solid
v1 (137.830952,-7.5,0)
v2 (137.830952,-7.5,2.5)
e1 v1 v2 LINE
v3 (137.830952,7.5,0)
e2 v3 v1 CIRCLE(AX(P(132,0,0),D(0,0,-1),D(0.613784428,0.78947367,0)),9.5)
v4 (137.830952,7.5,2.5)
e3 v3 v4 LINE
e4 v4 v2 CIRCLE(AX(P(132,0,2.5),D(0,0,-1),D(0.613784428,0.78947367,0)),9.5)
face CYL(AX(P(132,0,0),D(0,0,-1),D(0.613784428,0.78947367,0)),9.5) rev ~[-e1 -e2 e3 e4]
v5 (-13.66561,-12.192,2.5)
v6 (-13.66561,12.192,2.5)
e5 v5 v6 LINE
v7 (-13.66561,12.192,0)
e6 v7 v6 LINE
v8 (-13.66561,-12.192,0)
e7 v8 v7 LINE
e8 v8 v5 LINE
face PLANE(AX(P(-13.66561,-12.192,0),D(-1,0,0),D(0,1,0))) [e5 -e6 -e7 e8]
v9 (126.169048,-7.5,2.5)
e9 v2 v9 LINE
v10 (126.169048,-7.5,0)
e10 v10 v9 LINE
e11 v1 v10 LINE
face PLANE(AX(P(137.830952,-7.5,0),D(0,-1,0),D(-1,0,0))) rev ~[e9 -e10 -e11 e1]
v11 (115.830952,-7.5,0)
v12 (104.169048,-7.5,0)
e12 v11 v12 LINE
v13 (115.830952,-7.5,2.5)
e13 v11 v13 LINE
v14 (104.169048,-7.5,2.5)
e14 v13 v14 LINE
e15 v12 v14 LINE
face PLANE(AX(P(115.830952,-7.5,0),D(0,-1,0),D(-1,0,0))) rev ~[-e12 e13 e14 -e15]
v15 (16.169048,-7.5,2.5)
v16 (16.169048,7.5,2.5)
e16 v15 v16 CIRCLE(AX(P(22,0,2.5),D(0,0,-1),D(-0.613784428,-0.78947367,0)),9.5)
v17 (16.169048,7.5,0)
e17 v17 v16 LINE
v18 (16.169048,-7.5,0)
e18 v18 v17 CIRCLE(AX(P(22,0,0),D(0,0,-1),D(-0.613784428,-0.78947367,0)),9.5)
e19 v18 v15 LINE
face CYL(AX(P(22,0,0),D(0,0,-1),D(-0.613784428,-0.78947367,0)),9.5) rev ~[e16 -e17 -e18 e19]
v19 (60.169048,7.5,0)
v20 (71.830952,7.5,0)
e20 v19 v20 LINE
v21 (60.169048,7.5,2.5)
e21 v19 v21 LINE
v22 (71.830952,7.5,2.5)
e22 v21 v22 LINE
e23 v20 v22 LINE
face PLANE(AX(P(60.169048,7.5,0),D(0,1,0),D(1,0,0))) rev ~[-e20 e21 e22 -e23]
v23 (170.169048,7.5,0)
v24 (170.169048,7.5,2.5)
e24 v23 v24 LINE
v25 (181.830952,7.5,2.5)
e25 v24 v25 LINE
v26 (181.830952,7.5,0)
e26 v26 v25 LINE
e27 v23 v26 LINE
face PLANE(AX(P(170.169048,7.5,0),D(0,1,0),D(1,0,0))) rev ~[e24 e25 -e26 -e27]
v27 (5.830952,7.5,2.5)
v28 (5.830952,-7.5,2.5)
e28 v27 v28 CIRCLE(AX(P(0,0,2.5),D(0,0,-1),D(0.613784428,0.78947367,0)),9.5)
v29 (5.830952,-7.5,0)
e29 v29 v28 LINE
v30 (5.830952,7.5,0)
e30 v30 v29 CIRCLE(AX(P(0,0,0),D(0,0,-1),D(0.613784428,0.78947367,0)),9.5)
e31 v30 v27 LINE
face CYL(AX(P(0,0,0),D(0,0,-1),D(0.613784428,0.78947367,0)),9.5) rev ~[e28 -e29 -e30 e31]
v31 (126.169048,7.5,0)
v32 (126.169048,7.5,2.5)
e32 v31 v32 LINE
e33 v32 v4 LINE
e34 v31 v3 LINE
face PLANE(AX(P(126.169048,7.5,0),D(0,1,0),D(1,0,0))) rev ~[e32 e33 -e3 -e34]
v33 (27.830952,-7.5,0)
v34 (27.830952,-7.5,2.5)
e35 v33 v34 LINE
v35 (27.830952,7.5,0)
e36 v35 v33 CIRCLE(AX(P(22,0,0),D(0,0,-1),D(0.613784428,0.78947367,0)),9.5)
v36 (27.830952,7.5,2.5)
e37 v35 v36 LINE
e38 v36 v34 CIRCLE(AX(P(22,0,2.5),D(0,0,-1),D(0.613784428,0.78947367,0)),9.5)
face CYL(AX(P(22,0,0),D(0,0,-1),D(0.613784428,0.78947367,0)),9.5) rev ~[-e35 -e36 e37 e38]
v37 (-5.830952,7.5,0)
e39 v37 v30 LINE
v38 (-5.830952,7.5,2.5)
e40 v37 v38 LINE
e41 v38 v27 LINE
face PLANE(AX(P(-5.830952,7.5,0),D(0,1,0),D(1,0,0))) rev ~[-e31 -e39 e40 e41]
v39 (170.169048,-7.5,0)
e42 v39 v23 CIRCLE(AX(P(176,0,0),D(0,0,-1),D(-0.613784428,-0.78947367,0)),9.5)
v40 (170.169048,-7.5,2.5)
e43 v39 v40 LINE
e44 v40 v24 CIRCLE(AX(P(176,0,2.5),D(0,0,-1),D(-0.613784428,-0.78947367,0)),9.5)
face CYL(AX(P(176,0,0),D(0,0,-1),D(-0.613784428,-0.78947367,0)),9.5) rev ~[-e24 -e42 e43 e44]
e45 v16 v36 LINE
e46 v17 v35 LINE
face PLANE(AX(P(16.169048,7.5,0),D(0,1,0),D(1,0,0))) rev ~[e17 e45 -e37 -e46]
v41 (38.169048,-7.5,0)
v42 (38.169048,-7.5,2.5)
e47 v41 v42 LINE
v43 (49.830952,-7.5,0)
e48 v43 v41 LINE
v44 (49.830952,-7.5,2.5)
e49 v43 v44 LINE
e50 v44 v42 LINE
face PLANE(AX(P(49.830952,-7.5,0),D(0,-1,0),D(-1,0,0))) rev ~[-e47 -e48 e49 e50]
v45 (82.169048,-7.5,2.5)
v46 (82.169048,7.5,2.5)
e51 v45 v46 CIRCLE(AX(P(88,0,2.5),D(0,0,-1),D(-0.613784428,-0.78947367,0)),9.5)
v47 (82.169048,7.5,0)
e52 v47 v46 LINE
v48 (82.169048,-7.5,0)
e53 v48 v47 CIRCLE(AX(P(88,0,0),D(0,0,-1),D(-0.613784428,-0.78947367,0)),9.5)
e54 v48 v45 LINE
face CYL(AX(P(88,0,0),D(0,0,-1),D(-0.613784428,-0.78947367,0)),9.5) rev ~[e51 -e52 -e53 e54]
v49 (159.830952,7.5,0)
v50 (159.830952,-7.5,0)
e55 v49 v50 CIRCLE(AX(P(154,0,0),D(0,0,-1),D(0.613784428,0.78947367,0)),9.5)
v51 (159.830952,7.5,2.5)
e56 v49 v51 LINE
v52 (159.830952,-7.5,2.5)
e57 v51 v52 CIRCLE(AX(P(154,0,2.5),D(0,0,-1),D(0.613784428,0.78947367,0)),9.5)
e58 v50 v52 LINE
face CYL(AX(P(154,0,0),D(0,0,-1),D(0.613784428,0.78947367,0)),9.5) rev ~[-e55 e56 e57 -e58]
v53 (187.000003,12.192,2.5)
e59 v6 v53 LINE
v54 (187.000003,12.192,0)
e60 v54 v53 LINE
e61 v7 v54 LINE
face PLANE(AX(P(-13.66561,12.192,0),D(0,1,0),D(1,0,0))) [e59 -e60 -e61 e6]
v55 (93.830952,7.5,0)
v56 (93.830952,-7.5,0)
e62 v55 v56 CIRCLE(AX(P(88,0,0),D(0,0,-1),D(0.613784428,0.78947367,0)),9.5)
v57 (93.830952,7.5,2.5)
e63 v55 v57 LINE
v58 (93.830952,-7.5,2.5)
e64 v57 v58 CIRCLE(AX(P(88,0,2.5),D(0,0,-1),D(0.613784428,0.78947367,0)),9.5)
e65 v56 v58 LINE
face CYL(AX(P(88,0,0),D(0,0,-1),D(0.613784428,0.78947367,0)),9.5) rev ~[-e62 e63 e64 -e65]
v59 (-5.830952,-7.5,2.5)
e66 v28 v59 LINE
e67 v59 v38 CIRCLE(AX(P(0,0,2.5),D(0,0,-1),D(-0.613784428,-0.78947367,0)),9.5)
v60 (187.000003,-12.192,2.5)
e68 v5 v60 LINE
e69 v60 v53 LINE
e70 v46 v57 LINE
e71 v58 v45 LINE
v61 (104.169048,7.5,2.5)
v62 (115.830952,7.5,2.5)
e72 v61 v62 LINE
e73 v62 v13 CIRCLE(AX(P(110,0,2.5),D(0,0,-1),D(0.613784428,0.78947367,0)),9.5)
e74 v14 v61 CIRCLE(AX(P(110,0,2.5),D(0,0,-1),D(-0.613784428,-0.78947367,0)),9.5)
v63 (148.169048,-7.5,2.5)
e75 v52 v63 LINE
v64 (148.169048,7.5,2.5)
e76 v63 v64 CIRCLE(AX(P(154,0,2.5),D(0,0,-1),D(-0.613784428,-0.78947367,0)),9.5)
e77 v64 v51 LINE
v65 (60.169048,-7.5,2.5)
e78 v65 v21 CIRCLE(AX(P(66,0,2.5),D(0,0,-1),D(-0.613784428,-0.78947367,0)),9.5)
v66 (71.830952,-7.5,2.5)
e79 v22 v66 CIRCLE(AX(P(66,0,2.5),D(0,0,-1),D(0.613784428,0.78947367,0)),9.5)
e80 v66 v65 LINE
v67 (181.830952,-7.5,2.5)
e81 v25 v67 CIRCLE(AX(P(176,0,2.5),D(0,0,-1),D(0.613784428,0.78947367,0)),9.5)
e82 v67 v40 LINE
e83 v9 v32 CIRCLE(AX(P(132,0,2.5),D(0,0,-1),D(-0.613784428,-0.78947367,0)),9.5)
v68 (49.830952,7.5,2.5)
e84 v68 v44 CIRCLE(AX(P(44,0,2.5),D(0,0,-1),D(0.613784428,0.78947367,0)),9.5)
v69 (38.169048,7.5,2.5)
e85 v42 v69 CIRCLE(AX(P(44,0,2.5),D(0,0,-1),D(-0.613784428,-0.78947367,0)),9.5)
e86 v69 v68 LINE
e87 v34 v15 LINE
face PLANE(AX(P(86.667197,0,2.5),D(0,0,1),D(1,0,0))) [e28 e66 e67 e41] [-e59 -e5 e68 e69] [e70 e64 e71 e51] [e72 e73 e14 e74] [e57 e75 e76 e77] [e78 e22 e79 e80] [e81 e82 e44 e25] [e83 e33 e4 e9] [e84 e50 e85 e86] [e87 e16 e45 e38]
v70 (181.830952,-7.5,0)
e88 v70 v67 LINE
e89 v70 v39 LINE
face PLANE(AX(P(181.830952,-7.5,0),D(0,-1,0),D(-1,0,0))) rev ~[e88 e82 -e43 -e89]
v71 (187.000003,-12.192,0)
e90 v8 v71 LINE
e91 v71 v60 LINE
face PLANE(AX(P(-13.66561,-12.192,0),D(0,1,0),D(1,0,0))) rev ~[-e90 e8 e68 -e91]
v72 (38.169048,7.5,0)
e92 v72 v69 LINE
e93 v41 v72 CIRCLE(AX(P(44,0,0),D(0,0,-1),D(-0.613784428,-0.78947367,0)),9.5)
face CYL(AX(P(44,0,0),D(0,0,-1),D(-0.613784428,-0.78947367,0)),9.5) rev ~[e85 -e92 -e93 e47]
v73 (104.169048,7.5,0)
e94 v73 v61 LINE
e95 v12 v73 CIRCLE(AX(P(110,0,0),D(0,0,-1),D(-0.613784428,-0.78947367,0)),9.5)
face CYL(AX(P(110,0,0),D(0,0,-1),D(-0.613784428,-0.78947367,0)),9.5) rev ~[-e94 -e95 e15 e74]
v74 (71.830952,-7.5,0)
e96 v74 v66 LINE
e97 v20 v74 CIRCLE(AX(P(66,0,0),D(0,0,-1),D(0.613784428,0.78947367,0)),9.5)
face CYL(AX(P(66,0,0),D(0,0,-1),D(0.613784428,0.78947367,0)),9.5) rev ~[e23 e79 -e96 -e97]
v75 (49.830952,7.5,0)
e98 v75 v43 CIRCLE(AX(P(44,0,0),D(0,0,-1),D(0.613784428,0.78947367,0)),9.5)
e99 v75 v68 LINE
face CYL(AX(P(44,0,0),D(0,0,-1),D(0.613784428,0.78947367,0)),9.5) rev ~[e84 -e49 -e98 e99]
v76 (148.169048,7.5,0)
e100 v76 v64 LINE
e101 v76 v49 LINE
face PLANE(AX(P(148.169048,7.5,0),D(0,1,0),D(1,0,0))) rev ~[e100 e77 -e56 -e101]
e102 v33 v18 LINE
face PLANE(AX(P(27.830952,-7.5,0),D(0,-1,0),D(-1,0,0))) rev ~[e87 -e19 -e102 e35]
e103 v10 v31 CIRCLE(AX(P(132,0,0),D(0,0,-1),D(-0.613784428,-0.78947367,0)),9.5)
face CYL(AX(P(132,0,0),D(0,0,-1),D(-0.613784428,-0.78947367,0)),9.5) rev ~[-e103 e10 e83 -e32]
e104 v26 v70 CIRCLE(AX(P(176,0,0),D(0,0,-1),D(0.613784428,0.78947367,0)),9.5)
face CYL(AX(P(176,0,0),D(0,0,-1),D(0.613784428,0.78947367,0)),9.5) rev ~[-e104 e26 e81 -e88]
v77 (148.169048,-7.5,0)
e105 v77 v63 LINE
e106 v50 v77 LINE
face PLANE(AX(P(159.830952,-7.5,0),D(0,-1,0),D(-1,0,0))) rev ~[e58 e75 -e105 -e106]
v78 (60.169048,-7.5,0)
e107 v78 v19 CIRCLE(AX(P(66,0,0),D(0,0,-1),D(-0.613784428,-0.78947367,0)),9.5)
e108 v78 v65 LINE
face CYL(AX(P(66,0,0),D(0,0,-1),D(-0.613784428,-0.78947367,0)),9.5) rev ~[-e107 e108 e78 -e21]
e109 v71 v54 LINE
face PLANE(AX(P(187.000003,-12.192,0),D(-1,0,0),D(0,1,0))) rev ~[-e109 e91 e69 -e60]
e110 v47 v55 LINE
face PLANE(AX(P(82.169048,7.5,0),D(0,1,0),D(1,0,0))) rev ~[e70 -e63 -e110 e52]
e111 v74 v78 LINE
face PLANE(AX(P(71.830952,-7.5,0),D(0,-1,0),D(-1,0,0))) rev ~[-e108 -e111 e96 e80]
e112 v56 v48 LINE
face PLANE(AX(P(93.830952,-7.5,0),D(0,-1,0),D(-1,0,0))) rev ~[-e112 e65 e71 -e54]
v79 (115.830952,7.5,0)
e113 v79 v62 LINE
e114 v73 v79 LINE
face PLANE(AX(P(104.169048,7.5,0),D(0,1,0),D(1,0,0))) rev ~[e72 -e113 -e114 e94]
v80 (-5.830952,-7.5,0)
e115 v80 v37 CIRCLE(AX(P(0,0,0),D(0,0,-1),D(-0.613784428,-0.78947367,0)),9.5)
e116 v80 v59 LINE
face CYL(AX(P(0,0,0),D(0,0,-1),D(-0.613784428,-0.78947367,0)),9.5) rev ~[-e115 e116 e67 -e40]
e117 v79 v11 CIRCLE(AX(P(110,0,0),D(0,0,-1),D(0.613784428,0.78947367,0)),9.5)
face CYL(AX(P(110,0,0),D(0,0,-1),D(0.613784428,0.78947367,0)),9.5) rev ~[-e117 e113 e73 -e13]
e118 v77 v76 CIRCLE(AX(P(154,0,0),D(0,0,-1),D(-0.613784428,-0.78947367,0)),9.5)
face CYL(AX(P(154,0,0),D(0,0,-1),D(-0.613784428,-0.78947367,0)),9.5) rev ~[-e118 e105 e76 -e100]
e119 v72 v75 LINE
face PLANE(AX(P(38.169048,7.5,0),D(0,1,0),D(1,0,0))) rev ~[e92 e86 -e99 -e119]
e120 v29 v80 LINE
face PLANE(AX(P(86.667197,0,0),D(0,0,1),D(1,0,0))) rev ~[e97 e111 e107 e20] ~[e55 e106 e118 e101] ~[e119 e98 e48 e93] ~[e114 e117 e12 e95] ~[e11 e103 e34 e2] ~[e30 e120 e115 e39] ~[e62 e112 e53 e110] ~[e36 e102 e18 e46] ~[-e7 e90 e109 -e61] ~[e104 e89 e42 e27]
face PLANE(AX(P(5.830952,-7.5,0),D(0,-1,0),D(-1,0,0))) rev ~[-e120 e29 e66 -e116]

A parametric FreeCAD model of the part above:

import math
import FreeCAD as App
import Part
import Sketcher
from FreeCAD import Vector
Q = App.Units.Quantity

doc = App.newDocument("Part")
body = doc.addObject("PartDesign::Body", "Body")

sketch1 = doc.addObject("Sketcher::SketchObject", "Sketch")
body.addObject(sketch1)
sketch1.AttachmentSupport = (doc.XY_Plane, [""])
sketch1.MapMode = "FlatFace"
sketch1.addGeometry([
    Part.LineSegment(Vector(-14, 12, 0), Vector(-14, -12, 0)),
    Part.LineSegment(Vector(-14, -12, 0), Vector(187, -12, 0)),
    Part.LineSegment(Vector(187, -12, 0), Vector(187, 12, 0)),
    Part.LineSegment(Vector(187, 12, 0), Vector(-14, 12, 0)),
    Part.LineSegment(Vector(6, -8, 0), Vector(-6, -8, 0)),
    Part.ArcOfCircle(Part.Circle(Vector(0, 0, 0), Vector(0, 0, 1), 10), math.radians(128), math.radians(232)),
    Part.LineSegment(Vector(-6, 8, 0), Vector(6, 8, 0)),
    Part.ArcOfCircle(Part.Circle(Vector(0, 0, 0), Vector(0, 0, 1), 10), math.radians(-52), math.radians(52)),
    Part.LineSegment(Vector(28, -8, 0), Vector(16, -8, 0)),
    Part.ArcOfCircle(Part.Circle(Vector(22, 0, 0), Vector(0, 0, 1), 10), math.radians(128), math.radians(232)),
    Part.LineSegment(Vector(16, 8, 0), Vector(28, 8, 0)),
    Part.ArcOfCircle(Part.Circle(Vector(22, 0, 0), Vector(0, 0, 1), 10), math.radians(-52), math.radians(52)),
    Part.LineSegment(Vector(50, -8, 0), Vector(38, -8, 0)),
    Part.ArcOfCircle(Part.Circle(Vector(44, 0, 0), Vector(0, 0, 1), 10), math.radians(128), math.radians(232)),
    Part.LineSegment(Vector(38, 8, 0), Vector(50, 8, 0)),
    Part.ArcOfCircle(Part.Circle(Vector(44, 0, 0), Vector(0, 0, 1), 10), math.radians(-52), math.radians(52)),
    Part.LineSegment(Vector(72, -8, 0), Vector(60, -8, 0)),
    Part.ArcOfCircle(Part.Circle(Vector(66, 0, 0), Vector(0, 0, 1), 10), math.radians(128), math.radians(232)),
    Part.LineSegment(Vector(60, 8, 0), Vector(72, 8, 0)),
    Part.ArcOfCircle(Part.Circle(Vector(66, 0, 0), Vector(0, 0, 1), 10), math.radians(-52), math.radians(52)),
    Part.LineSegment(Vector(94, -8, 0), Vector(82, -8, 0)),
    Part.ArcOfCircle(Part.Circle(Vector(88, 0, 0), Vector(0, 0, 1), 10), math.radians(128), math.radians(232)),
    Part.LineSegment(Vector(82, 8, 0), Vector(94, 8, 0)),
    Part.ArcOfCircle(Part.Circle(Vector(88, 0, 0), Vector(0, 0, 1), 10), math.radians(-52), math.radians(52)),
    Part.LineSegment(Vector(116, -8, 0), Vector(104, -8, 0)),
    Part.ArcOfCircle(Part.Circle(Vector(110, 0, 0), Vector(0, 0, 1), 10), math.radians(128), math.radians(232)),
    Part.LineSegment(Vector(104, 8, 0), Vector(116, 8, 0)),
    Part.ArcOfCircle(Part.Circle(Vector(110, 0, 0), Vector(0, 0, 1), 10), math.radians(-52), math.radians(52)),
    Part.LineSegment(Vector(138, -8, 0), Vector(126, -8, 0)),
    Part.ArcOfCircle(Part.Circle(Vector(132, 0, 0), Vector(0, 0, 1), 10), math.radians(128), math.radians(232)),
    Part.LineSegment(Vector(126, 8, 0), Vector(138, 8, 0)),
    Part.ArcOfCircle(Part.Circle(Vector(132, 0, 0), Vector(0, 0, 1), 10), math.radians(-52), math.radians(52)),
    Part.LineSegment(Vector(160, -8, 0), Vector(148, -8, 0)),
    Part.ArcOfCircle(Part.Circle(Vector(154, 0, 0), Vector(0, 0, 1), 10), math.radians(128), math.radians(232)),
    Part.LineSegment(Vector(148, 8, 0), Vector(160, 8, 0)),
    Part.ArcOfCircle(Part.Circle(Vector(154, 0, 0), Vector(0, 0, 1), 10), math.radians(-52), math.radians(52)),
    Part.LineSegment(Vector(182, -8, 0), Vector(170, -8, 0)),
    Part.ArcOfCircle(Part.Circle(Vector(176, 0, 0), Vector(0, 0, 1), 10), math.radians(128), math.radians(232)),
    Part.LineSegment(Vector(170, 8, 0), Vector(182, 8, 0)),
    Part.ArcOfCircle(Part.Circle(Vector(176, 0, 0), Vector(0, 0, 1), 10), math.radians(-52), math.radians(52)),
], False)
sketch1.addConstraint([
    Sketcher.Constraint("Coincident", 0, 2, 1, 1),
    Sketcher.Constraint("Coincident", 1, 2, 2, 1),
    Sketcher.Constraint("Coincident", 2, 2, 3, 1),
    Sketcher.Constraint("Coincident", 3, 2, 0, 1),
    Sketcher.Constraint("Coincident", 4, 2, 5, 2),
    Sketcher.Constraint("Coincident", 5, 1, 6, 1),
    Sketcher.Constraint("Coincident", 6, 2, 7, 2),
    Sketcher.Constraint("Coincident", 7, 1, 4, 1),
    Sketcher.Constraint("Coincident", 8, 2, 9, 2),
    Sketcher.Constraint("Coincident", 9, 1, 10, 1),
    Sketcher.Constraint("Coincident", 10, 2, 11, 2),
    Sketcher.Constraint("Coincident", 11, 1, 8, 1),
    Sketcher.Constraint("Coincident", 12, 2, 13, 2),
    Sketcher.Constraint("Coincident", 13, 1, 14, 1),
    Sketcher.Constraint("Coincident", 14, 2, 15, 2),
    Sketcher.Constraint("Coincident", 15, 1, 12, 1),
    Sketcher.Constraint("Coincident", 16, 2, 17, 2),
    Sketcher.Constraint("Coincident", 17, 1, 18, 1),
    Sketcher.Constraint("Coincident", 18, 2, 19, 2),
    Sketcher.Constraint("Coincident", 19, 1, 16, 1),
    Sketcher.Constraint("Coincident", 20, 2, 21, 2),
    Sketcher.Constraint("Coincident", 21, 1, 22, 1),
    Sketcher.Constraint("Coincident", 22, 2, 23, 2),
    Sketcher.Constraint("Coincident", 23, 1, 20, 1),
    Sketcher.Constraint("Coincident", 24, 2, 25, 2),
    Sketcher.Constraint("Coincident", 25, 1, 26, 1),
    Sketcher.Constraint("Coincident", 26, 2, 27, 2),
    Sketcher.Constraint("Coincident", 27, 1, 24, 1),
    Sketcher.Constraint("Coincident", 28, 2, 29, 2),
    Sketcher.Constraint("Coincident", 29, 1, 30, 1),
    Sketcher.Constraint("Coincident", 30, 2, 31, 2),
    Sketcher.Constraint("Coincident", 31, 1, 28, 1),
    Sketcher.Constraint("Coincident", 32, 2, 33, 2),
    Sketcher.Constraint("Coincident", 33, 1, 34, 1),
    Sketcher.Constraint("Coincident", 34, 2, 35, 2),
    Sketcher.Constraint("Coincident", 35, 1, 32, 1),
    Sketcher.Constraint("Coincident", 36, 2, 37, 2),
    Sketcher.Constraint("Coincident", 37, 1, 38, 1),
    Sketcher.Constraint("Coincident", 38, 2, 39, 2),
    Sketcher.Constraint("Coincident", 39, 1, 36, 1),
    Sketcher.Constraint("Vertical", 0),
    Sketcher.Constraint("Horizontal", 1),
    Sketcher.Constraint("Vertical", 2),
    Sketcher.Constraint("Horizontal", 3),
    Sketcher.Constraint("Horizontal", 4),
    Sketcher.Constraint("Horizontal", 6),
    Sketcher.Constraint("Horizontal", 8),
    Sketcher.Constraint("Horizontal", 10),
    Sketcher.Constraint("Horizontal", 12),
    Sketcher.Constraint("Horizontal", 14),
    Sketcher.Constraint("Horizontal", 16),
    Sketcher.Constraint("Horizontal", 18),
    Sketcher.Constraint("Horizontal", 20),
    Sketcher.Constraint("Horizontal", 22),
    Sketcher.Constraint("Horizontal", 24),
    Sketcher.Constraint("Horizontal", 26),
    Sketcher.Constraint("Horizontal", 28),
    Sketcher.Constraint("Horizontal", 30),
    Sketcher.Constraint("Horizontal", 32),
    Sketcher.Constraint("Horizontal", 34),
    Sketcher.Constraint("Horizontal", 36),
    Sketcher.Constraint("Horizontal", 38),
    Sketcher.Constraint("Coincident", 5, 3, -1, 1),
    Sketcher.Constraint("Coincident", 7, 3, -1, 1),
    Sketcher.Constraint("Coincident", 11, 3, 9, 3),
    Sketcher.Constraint("Coincident", 15, 3, 13, 3),
    Sketcher.Constraint("Coincident", 19, 3, 17, 3),
    Sketcher.Constraint("Coincident", 23, 3, 21, 3),
    Sketcher.Constraint("Coincident", 27, 3, 25, 3),
    Sketcher.Constraint("Coincident", 31, 3, 29, 3),
    Sketcher.Constraint("Coincident", 35, 3, 33, 3),
    Sketcher.Constraint("Coincident", 39, 3, 37, 3),
    Sketcher.Constraint("Equal", 5, 7),
    Sketcher.Constraint("Equal", 7, 9),
    Sketcher.Constraint("Equal", 9, 11),
    Sketcher.Constraint("Equal", 11, 13),
    Sketcher.Constraint("Equal", 13, 15),
    Sketcher.Constraint("Equal", 15, 17),
    Sketcher.Constraint("Equal", 17, 19),
    Sketcher.Constraint("Equal", 19, 21),
    Sketcher.Constraint("Equal", 21, 23),
    Sketcher.Constraint("Equal", 23, 25),
    Sketcher.Constraint("Equal", 25, 27),
    Sketcher.Constraint("Equal", 27, 29),
    Sketcher.Constraint("Equal", 29, 31),
    Sketcher.Constraint("Equal", 31, 33),
    Sketcher.Constraint("Equal", 33, 35),
    Sketcher.Constraint("Equal", 35, 37),
    Sketcher.Constraint("Equal", 37, 39),
    Sketcher.Constraint("Symmetric", 8, 2, 9, 1, -1),
    Sketcher.Constraint("Symmetric", 12, 2, 13, 1, -1),
    Sketcher.Constraint("Symmetric", 16, 2, 17, 1, -1),
    Sketcher.Constraint("Symmetric", 20, 2, 21, 1, -1),
    Sketcher.Constraint("Symmetric", 24, 2, 25, 1, -1),
    Sketcher.Constraint("Symmetric", 28, 2, 29, 1, -1),
    Sketcher.Constraint("Symmetric", 32, 2, 33, 1, -1),
    Sketcher.Constraint("Symmetric", 36, 2, 37, 1, -1),
    Sketcher.Constraint("Horizontal", 7, 1, 8, 2),
    Sketcher.Constraint("Horizontal", 6, 2, 9, 1),
    Sketcher.Constraint("Horizontal", 11, 1, 12, 2),
    Sketcher.Constraint("Horizontal", 15, 1, 16, 2),
    Sketcher.Constraint("Horizontal", 19, 1, 20, 2),
    Sketcher.Constraint("Horizontal", 23, 1, 24, 2),
    Sketcher.Constraint("Horizontal", 27, 1, 28, 2),
    Sketcher.Constraint("Horizontal", 31, 1, 32, 2),
    Sketcher.Constraint("Horizontal", 35, 1, 36, 2),
    Sketcher.Constraint("Radius", 5, Q("9.5 mm")),
    Sketcher.Constraint("DistanceX", -1, 1, 9, 3, Q("22 mm")),
    Sketcher.Constraint("DistanceX", -1, 1, 13, 3, Q("44 mm")),
    Sketcher.Constraint("DistanceX", -1, 1, 17, 3, Q("66 mm")),
    Sketcher.Constraint("DistanceX", -1, 1, 21, 3, Q("88 mm")),
    Sketcher.Constraint("DistanceX", -1, 1, 25, 3, Q("110 mm")),
    Sketcher.Constraint("DistanceX", -1, 1, 29, 3, Q("132 mm")),
    Sketcher.Constraint("DistanceX", -1, 1, 33, 3, Q("154 mm")),
    Sketcher.Constraint("DistanceX", -1, 1, 37, 3, Q("176 mm")),
    Sketcher.Constraint("DistanceY", 4, 2, 5, 1, Q("15 mm")),
    Sketcher.Constraint("DistanceY", 0, 2, 0, 1, Q("24.384 mm")),
    Sketcher.Constraint("DistanceY", 0, 2, -1, 1, Q("12.192 mm")),
    Sketcher.Constraint("DistanceX", 1, 1, 1, 2, Q("200.665613 mm")),
    Sketcher.Constraint("DistanceX", 0, 2, -1, 1, Q("13.66561 mm")),
])
pad1 = doc.addObject("PartDesign::Pad", "Pad")
body.addObject(pad1)
pad1.Profile = sketch1
pad1.Length = 2.5

doc.recompute()
